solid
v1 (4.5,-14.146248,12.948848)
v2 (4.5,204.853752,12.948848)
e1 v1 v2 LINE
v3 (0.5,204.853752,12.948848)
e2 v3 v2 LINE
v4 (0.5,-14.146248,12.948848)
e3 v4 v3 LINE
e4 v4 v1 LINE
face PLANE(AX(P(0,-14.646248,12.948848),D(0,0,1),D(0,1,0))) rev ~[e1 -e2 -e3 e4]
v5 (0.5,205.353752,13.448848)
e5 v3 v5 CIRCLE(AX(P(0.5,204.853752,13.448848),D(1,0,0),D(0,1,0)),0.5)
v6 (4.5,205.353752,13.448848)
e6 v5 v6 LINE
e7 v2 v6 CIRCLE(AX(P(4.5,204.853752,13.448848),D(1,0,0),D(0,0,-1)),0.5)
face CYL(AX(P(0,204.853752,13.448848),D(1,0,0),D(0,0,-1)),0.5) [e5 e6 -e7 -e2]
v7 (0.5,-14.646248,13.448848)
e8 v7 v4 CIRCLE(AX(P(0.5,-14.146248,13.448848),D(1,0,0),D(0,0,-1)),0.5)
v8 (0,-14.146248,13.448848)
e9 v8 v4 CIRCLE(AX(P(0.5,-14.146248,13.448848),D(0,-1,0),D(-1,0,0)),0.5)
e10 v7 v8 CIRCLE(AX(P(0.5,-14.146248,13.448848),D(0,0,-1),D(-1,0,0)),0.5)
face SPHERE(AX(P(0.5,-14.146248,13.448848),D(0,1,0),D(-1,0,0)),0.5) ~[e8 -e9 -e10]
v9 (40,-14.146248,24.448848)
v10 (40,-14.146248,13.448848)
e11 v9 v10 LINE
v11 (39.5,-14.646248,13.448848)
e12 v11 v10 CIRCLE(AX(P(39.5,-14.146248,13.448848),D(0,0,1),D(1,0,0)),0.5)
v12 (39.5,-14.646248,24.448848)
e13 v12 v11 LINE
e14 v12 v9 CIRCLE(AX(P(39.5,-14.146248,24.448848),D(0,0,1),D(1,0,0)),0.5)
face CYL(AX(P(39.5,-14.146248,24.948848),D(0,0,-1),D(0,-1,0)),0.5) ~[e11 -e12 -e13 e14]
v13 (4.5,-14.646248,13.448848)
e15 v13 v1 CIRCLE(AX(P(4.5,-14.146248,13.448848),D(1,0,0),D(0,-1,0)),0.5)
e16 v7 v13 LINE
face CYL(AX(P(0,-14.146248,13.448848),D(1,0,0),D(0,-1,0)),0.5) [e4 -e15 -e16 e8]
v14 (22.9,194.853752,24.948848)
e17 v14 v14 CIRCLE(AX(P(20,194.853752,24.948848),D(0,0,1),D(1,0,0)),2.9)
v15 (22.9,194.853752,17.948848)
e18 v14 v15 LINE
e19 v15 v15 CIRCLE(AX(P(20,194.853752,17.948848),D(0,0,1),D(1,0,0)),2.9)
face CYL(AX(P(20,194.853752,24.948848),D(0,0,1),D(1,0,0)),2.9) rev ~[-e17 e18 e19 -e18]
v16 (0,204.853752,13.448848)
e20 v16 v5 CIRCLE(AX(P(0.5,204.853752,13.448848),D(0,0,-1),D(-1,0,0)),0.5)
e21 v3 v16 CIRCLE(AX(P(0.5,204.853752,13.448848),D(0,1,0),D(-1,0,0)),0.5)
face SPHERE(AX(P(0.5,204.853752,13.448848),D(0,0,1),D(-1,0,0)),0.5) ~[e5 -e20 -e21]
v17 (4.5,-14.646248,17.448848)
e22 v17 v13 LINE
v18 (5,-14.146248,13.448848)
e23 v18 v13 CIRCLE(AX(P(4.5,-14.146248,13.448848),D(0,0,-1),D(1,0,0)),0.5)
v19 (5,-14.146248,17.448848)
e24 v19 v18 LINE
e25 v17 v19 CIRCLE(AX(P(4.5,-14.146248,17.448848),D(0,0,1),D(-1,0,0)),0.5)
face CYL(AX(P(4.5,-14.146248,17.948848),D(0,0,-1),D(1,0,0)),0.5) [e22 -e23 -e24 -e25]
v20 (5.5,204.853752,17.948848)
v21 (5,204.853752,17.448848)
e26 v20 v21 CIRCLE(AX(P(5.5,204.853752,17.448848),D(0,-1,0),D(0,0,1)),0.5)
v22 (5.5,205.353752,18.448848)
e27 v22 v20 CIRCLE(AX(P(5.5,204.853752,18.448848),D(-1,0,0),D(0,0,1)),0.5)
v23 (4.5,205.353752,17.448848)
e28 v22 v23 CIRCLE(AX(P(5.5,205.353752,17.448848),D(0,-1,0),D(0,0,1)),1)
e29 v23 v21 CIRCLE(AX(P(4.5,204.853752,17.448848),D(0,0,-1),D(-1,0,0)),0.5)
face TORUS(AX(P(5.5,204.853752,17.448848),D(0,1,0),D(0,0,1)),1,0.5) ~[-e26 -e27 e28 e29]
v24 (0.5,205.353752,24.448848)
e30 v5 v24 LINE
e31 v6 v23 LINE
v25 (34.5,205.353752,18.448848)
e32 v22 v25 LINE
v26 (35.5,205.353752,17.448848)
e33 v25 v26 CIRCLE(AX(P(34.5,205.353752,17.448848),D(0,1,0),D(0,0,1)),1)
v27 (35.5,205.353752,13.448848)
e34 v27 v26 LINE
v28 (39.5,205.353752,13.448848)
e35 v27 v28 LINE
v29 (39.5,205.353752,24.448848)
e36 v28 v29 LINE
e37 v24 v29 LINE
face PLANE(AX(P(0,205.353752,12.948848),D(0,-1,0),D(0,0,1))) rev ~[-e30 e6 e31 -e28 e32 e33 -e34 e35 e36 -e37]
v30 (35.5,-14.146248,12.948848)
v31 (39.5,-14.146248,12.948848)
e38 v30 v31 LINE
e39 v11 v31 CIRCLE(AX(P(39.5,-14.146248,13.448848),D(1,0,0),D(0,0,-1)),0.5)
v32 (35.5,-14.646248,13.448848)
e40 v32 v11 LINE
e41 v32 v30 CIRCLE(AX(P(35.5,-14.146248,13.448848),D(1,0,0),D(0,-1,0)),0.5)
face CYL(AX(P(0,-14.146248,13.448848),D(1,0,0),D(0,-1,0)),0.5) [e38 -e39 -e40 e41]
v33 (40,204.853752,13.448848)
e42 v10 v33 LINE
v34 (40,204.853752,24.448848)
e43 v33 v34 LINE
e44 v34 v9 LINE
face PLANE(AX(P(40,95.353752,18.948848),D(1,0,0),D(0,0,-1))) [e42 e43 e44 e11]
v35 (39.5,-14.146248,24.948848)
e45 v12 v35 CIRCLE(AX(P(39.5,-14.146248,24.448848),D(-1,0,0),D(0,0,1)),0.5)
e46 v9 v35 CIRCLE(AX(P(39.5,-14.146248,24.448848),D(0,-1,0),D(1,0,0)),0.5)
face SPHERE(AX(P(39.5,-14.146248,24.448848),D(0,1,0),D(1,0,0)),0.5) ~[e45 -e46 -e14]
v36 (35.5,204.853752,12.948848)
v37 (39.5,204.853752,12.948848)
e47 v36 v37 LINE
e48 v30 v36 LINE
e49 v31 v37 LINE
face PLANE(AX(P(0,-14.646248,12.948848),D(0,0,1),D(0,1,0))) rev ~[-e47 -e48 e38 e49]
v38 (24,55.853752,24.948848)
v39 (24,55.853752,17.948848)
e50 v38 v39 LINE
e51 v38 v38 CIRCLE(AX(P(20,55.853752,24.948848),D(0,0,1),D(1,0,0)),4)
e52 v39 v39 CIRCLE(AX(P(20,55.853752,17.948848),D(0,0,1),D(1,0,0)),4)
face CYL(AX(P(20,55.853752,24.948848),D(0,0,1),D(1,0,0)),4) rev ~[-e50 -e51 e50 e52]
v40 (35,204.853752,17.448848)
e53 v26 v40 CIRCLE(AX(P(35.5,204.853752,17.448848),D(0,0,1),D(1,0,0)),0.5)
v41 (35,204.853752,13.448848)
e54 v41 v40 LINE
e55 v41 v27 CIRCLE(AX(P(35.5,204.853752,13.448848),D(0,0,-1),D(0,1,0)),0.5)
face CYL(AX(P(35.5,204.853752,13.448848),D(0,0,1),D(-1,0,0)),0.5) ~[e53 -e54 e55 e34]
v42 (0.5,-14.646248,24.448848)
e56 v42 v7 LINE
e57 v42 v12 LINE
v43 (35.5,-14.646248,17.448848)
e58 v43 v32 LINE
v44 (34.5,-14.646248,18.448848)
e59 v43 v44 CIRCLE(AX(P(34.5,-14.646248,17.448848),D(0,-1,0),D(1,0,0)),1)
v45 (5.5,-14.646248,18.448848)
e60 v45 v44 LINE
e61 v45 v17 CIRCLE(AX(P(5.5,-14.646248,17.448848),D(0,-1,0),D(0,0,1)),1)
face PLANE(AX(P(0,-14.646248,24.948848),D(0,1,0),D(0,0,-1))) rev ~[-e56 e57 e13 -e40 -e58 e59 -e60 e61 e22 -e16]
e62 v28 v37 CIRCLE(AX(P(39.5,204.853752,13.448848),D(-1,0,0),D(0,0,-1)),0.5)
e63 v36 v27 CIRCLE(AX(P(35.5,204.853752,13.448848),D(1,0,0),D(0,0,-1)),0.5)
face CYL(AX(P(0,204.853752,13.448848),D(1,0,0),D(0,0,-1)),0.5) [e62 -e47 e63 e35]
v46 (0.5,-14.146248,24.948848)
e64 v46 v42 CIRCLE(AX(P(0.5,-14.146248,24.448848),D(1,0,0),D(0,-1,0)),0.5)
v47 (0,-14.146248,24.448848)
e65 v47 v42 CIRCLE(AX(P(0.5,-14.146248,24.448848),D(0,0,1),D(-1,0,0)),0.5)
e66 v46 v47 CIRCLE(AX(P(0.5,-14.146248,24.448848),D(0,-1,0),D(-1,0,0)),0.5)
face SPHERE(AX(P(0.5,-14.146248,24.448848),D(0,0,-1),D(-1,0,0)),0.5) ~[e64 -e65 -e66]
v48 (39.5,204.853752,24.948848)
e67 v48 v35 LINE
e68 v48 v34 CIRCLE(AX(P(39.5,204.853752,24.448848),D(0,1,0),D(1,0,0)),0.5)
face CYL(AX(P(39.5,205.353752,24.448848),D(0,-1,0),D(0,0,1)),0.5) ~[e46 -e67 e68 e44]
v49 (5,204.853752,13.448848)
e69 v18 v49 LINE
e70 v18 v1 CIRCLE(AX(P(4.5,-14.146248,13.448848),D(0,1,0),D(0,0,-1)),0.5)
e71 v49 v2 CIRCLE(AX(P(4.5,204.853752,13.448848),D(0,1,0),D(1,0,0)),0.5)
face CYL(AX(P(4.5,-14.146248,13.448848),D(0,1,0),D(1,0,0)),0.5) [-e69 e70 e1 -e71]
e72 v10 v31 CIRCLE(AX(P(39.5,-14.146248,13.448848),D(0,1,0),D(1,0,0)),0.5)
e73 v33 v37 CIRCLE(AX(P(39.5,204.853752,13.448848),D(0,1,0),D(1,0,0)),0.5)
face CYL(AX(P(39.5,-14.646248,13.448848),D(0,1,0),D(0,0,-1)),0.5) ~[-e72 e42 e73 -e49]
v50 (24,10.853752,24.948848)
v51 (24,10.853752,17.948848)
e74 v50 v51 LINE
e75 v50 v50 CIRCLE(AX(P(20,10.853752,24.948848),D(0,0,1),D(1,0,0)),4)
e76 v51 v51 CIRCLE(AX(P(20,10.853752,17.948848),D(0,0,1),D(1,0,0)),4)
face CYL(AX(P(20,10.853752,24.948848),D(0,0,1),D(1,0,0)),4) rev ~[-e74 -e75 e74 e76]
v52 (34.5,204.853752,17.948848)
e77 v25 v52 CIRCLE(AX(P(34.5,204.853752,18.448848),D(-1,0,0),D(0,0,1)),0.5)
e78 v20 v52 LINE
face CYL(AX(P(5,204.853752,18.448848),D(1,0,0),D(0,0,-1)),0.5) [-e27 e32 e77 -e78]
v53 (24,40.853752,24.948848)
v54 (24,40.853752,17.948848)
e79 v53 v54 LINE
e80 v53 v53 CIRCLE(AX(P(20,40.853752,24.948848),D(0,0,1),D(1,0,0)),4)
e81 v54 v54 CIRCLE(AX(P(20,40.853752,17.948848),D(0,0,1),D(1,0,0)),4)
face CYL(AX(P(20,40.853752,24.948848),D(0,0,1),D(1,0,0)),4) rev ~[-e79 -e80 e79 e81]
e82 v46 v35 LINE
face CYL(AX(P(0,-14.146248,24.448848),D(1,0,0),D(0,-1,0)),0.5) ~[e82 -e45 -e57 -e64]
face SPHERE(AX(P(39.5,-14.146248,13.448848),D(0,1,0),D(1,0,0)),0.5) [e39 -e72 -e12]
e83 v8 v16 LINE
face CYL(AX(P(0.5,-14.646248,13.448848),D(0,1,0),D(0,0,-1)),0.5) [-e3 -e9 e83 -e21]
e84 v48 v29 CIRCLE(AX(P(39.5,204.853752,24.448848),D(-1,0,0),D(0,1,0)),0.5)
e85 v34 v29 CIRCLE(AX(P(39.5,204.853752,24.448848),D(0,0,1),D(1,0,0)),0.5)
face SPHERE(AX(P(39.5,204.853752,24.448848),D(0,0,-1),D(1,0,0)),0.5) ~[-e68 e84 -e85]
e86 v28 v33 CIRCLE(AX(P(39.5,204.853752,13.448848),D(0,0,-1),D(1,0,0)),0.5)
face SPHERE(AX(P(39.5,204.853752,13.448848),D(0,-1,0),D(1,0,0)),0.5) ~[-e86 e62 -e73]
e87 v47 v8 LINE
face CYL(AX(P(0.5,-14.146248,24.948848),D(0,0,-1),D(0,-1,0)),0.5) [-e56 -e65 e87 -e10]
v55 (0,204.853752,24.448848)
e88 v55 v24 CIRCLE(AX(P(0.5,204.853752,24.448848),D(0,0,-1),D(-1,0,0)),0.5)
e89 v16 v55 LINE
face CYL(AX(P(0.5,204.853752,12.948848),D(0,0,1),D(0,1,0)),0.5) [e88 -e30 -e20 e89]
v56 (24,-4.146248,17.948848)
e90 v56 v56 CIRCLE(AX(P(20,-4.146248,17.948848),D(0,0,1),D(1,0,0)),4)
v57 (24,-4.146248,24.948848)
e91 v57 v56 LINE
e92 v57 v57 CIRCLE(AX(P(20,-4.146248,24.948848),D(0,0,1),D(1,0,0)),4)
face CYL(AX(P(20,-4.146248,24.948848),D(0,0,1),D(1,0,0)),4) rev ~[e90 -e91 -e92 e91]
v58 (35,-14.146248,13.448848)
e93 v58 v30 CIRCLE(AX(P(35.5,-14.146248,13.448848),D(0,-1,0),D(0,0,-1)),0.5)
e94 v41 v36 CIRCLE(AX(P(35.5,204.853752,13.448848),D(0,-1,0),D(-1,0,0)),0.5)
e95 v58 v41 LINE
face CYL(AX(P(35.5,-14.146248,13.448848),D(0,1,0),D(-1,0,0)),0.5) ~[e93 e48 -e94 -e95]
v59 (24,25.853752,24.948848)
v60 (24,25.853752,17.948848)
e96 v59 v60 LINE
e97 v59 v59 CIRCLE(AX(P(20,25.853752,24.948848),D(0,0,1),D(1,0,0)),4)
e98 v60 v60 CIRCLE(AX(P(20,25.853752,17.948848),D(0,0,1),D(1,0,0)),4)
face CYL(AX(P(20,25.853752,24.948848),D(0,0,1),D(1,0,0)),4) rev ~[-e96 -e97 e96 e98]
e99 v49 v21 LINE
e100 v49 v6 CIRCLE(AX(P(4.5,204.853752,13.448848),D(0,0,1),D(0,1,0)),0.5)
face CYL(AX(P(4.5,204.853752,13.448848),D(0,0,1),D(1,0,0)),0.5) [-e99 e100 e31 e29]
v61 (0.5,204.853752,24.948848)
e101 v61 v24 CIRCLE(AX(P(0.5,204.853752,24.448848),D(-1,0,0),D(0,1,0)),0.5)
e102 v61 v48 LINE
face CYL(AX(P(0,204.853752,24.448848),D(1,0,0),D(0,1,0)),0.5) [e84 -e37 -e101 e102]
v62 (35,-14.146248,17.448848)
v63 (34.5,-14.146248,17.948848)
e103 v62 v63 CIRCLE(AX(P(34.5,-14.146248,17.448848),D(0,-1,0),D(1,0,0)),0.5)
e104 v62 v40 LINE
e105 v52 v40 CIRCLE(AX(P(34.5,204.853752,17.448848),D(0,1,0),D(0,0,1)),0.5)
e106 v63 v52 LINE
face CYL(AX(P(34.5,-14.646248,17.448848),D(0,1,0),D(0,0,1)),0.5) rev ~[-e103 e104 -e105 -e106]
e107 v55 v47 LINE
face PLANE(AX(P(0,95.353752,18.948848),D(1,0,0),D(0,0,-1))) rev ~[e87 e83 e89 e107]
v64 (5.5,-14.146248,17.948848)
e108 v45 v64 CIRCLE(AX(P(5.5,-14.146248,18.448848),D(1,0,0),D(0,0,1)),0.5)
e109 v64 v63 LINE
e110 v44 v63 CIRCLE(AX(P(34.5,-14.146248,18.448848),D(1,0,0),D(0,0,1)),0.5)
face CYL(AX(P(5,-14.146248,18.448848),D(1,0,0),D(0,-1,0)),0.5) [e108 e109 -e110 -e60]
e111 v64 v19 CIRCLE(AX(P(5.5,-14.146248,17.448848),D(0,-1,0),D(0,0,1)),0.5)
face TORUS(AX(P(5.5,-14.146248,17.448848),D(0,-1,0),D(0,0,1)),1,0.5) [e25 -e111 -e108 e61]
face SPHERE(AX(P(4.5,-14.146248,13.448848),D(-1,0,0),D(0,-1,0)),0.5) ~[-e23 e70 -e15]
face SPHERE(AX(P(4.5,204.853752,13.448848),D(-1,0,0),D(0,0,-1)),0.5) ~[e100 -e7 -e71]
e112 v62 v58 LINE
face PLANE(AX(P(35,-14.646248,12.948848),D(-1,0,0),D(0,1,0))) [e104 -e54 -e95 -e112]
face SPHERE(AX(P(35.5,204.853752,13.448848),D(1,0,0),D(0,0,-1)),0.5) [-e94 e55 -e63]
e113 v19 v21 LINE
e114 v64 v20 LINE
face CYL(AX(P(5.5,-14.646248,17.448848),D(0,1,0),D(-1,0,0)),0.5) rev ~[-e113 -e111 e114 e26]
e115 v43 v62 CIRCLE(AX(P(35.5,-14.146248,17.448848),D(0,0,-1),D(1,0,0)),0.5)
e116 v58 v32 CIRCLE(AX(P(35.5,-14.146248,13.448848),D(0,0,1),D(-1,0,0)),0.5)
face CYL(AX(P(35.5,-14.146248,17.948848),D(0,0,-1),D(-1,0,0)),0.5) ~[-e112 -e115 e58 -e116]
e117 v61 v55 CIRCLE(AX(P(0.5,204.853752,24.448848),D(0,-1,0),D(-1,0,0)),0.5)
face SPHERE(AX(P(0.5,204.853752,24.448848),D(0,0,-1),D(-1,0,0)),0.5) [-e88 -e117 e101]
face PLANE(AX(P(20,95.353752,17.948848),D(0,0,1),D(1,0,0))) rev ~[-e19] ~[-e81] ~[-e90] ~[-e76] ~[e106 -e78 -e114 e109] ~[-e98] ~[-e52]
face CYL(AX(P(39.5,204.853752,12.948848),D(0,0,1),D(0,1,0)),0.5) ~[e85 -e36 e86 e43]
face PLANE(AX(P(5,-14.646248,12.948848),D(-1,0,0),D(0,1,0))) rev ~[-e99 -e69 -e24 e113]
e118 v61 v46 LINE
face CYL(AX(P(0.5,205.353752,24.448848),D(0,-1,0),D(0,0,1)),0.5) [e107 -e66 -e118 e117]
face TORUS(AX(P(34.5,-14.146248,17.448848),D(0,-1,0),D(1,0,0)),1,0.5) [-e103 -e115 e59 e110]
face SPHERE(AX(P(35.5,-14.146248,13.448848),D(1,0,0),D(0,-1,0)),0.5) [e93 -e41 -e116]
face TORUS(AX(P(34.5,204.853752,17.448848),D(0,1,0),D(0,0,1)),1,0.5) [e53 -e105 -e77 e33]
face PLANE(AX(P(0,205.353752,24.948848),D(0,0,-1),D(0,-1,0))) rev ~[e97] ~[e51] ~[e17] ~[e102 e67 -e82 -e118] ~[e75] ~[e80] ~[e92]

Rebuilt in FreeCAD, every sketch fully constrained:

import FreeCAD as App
import Part
import Sketcher
Q = App.Units.Quantity


def edges_at(feature, points):
    """Names of the edges that pass closest to the given points."""
    edges = feature.Shape.Edges
    near = lambda p: min(range(len(edges)), key=lambda i: edges[i].distToShape(Part.Vertex(*p))[0])
    return sorted({f"Edge{near(p) + 1}" for p in points})


def add_polygon(sketch, points):
    """Adds a closed chain of lines whose ends are joined by coincident constraints."""
    first, n = sketch.GeometryCount, len(points)
    for a, b in zip(points, points[1:] + points[:1]):
        sketch.addGeometry(Part.LineSegment(App.Vector(*a, 0), App.Vector(*b, 0)), False)
    for i in range(n):
        sketch.addConstraint(Sketcher.Constraint("Coincident", first + i, 2, first + (i + 1) % n, 1))

doc = App.newDocument("Part")
params = doc.addObject("Spreadsheet::Sheet", "Params")
for row, (alias, value) in enumerate([
    ("sketch1_width", "220 mm"),
    ("sketch1_height", "12 mm"),
    ("pad1_length", "40 mm"),
    ("fillet_radius", "0.5 mm"),
    ("sketch2_width", "30 mm"),
    ("sketch2_height", "220 mm"),
    ("pocket1_length", "5 mm"),
    ("sketch3_diameter", "8 mm"),
    ("sketch4_diameter", "5.8 mm"),
    ("sketch5_diameter", "8 mm"),
    ("sketch6_diameter", "8 mm"),
    ("sketch7_diameter", "8 mm"),
    ("sketch8_diameter", "8 mm"),
    ("fillet2_radius", "0.5 mm"),
], start=1):
    params.set(f"A{row}", alias)
    params.set(f"B{row}", "=" + value)
    params.setAlias(f"B{row}", alias)

body = doc.addObject("PartDesign::Body", "Body")

sketch1 = body.newObject("Sketcher::SketchObject", "Sketch")
sketch1.AttachmentSupport = (doc.getObject("YZ_Plane"), [""])
sketch1.MapMode = "FlatFace"
add_polygon(sketch1, [(-14.646248, 24.948848), (-14.646248, 12.948848), (205.353752, 12.948848), (205.353752, 24.948848)])
sketch1.addConstraint([
    Sketcher.Constraint("Vertical", 0),
    Sketcher.Constraint("Horizontal", 1),
    Sketcher.Constraint("Vertical", 2),
    Sketcher.Constraint("Horizontal", 3),
    Sketcher.Constraint("DistanceX", 1, 1, 1, 2, Q("220 mm")),
    Sketcher.Constraint("DistanceY", 0, 2, 0, 1, Q("12 mm")),
    Sketcher.Constraint("DistanceX", 0, 2, -1, 1, Q("14.646248 mm")),
    Sketcher.Constraint("DistanceY", -1, 1, 0, 2, Q("12.948848 mm")),
])
sketch1.setExpression("Constraints[8]", "Params.sketch1_width")
sketch1.setExpression("Constraints[9]", "Params.sketch1_height")
pad1 = body.newObject("PartDesign::Pad", "Pad")
pad1.Profile = sketch1
pad1.setExpression("Length", "Params.pad1_length")
doc.recompute()

fillet = body.newObject("PartDesign::Fillet", "Fillet")
fillet.Base = (pad1, ["Edge1"])
fillet.UseAllEdges = True
fillet.setExpression("Radius", "Params.fillet_radius")

sketch2 = body.newObject("Sketcher::SketchObject", "Sketch001")
sketch2.AttachmentSupport = (doc.getObject("XY_Plane"), [""])
sketch2.MapMode = "FlatFace"
sketch2.AttachmentOffset = App.Placement(App.Vector(0, 0, 12.948848), App.Rotation())
add_polygon(sketch2, [(5, 205.353752), (5, -14.646248), (35, -14.646248), (35, 205.353752)])
sketch2.addConstraint([
    Sketcher.Constraint("Vertical", 0),
    Sketcher.Constraint("Horizontal", 1),
    Sketcher.Constraint("Vertical", 2),
    Sketcher.Constraint("Horizontal", 3),
    Sketcher.Constraint("DistanceX", 1, 1, 1, 2, Q("30 mm")),
    Sketcher.Constraint("DistanceY", 0, 2, 0, 1, Q("220 mm")),
    Sketcher.Constraint("DistanceX", -1, 1, 0, 2, Q("5 mm")),
    Sketcher.Constraint("DistanceY", 0, 2, -1, 1, Q("14.646248 mm")),
])
sketch2.setExpression("Constraints[8]", "Params.sketch2_width")
sketch2.setExpression("Constraints[9]", "Params.sketch2_height")
pocket1 = body.newObject("PartDesign::Pocket", "Pocket")
pocket1.Profile = sketch2
pocket1.setExpression("Length", "Params.pocket1_length")
pocket1.Reversed = True

sketch3 = body.newObject("Sketcher::SketchObject", "Sketch002")
sketch3.AttachmentSupport = (doc.getObject("XY_Plane"), [""])
sketch3.MapMode = "FlatFace"
sketch3.AttachmentOffset = App.Placement(App.Vector(0, 0, 24.948848), App.Rotation())
sketch3.addGeometry(Part.Circle(App.Vector(20, -4.146248, 0), App.Vector(0, 0, 1), 4), False)
sketch3.addConstraint([
    Sketcher.Constraint("Diameter", 0, Q("8 mm")),
    Sketcher.Constraint("DistanceX", -1, 1, 0, 3, Q("20 mm")),
    Sketcher.Constraint("DistanceY", 0, 3, -1, 1, Q("4.146248 mm")),
])
sketch3.setExpression("Constraints[0]", "Params.sketch3_diameter")
pocket2 = body.newObject("PartDesign::Pocket", "Pocket001")
pocket2.Profile = sketch3
pocket2.Type = "UpToFirst"

sketch4 = body.newObject("Sketcher::SketchObject", "Sketch003")
sketch4.AttachmentSupport = (doc.getObject("XY_Plane"), [""])
sketch4.MapMode = "FlatFace"
sketch4.AttachmentOffset = App.Placement(App.Vector(0, 0, 24.948848), App.Rotation())
sketch4.addGeometry(Part.Circle(App.Vector(20, 194.853752, 0), App.Vector(0, 0, 1), 2.9), False)
sketch4.addConstraint([
    Sketcher.Constraint("Diameter", 0, Q("5.8 mm")),
    Sketcher.Constraint("DistanceX", -1, 1, 0, 3, Q("20 mm")),
    Sketcher.Constraint("DistanceY", -1, 1, 0, 3, Q("194.853752 mm")),
])
sketch4.setExpression("Constraints[0]", "Params.sketch4_diameter")
pocket3 = body.newObject("PartDesign::Pocket", "Pocket002")
pocket3.Profile = sketch4
pocket3.Type = "UpToFirst"

sketch5 = body.newObject("Sketcher::SketchObject", "Sketch004")
sketch5.AttachmentSupport = (doc.getObject("XY_Plane"), [""])
sketch5.MapMode = "FlatFace"
sketch5.AttachmentOffset = App.Placement(App.Vector(0, 0, 24.948848), App.Rotation())
sketch5.addGeometry(Part.Circle(App.Vector(20, 10.853752, 0), App.Vector(0, 0, 1), 4), False)
sketch5.addConstraint([
    Sketcher.Constraint("Diameter", 0, Q("8 mm")),
    Sketcher.Constraint("DistanceX", -1, 1, 0, 3, Q("20 mm")),
    Sketcher.Constraint("DistanceY", -1, 1, 0, 3, Q("10.853752 mm")),
])
sketch5.setExpression("Constraints[0]", "Params.sketch5_diameter")
pocket4 = body.newObject("PartDesign::Pocket", "Pocket003")
pocket4.Profile = sketch5
pocket4.Type = "UpToFirst"

sketch6 = body.newObject("Sketcher::SketchObject", "Sketch005")
sketch6.AttachmentSupport = (doc.getObject("XY_Plane"), [""])
sketch6.MapMode = "FlatFace"
sketch6.AttachmentOffset = App.Placement(App.Vector(0, 0, 24.948848), App.Rotation())
sketch6.addGeometry(Part.Circle(App.Vector(20, 25.853752, 0), App.Vector(0, 0, 1), 4), False)
sketch6.addConstraint([
    Sketcher.Constraint("Diameter", 0, Q("8 mm")),
    Sketcher.Constraint("DistanceX", -1, 1, 0, 3, Q("20 mm")),
    Sketcher.Constraint("DistanceY", -1, 1, 0, 3, Q("25.853752 mm")),
])
sketch6.setExpression("Constraints[0]", "Params.sketch6_diameter")
pocket5 = body.newObject("PartDesign::Pocket", "Pocket004")
pocket5.Profile = sketch6
pocket5.Type = "UpToFirst"

sketch7 = body.newObject("Sketcher::SketchObject", "Sketch006")
sketch7.AttachmentSupport = (doc.getObject("XY_Plane"), [""])
sketch7.MapMode = "FlatFace"
sketch7.AttachmentOffset = App.Placement(App.Vector(0, 0, 24.948848), App.Rotation())
sketch7.addGeometry(Part.Circle(App.Vector(20, 40.853752, 0), App.Vector(0, 0, 1), 4), False)
sketch7.addConstraint([
    Sketcher.Constraint("Diameter", 0, Q("8 mm")),
    Sketcher.Constraint("DistanceX", -1, 1, 0, 3, Q("20 mm")),
    Sketcher.Constraint("DistanceY", -1, 1, 0, 3, Q("40.853752 mm")),
])
sketch7.setExpression("Constraints[0]", "Params.sketch7_diameter")
pocket6 = body.newObject("PartDesign::Pocket", "Pocket005")
pocket6.Profile = sketch7
pocket6.Type = "UpToFirst"

sketch8 = body.newObject("Sketcher::SketchObject", "Sketch007")
sketch8.AttachmentSupport = (doc.getObject("XY_Plane"), [""])
sketch8.MapMode = "FlatFace"
sketch8.AttachmentOffset = App.Placement(App.Vector(0, 0, 24.948848), App.Rotation())
sketch8.addGeometry(Part.Circle(App.Vector(20, 55.853752, 0), App.Vector(0, 0, 1), 4), False)
sketch8.addConstraint([
    Sketcher.Constraint("Diameter", 0, Q("8 mm")),
    Sketcher.Constraint("DistanceX", -1, 1, 0, 3, Q("20 mm")),
    Sketcher.Constraint("DistanceY", -1, 1, 0, 3, Q("55.853752 mm")),
])
sketch8.setExpression("Constraints[0]", "Params.sketch8_diameter")
pocket7 = body.newObject("PartDesign::Pocket", "Pocket006")
pocket7.Profile = sketch8
pocket7.Type = "UpToFirst"
doc.recompute()

fillet2 = body.newObject("PartDesign::Fillet", "Fillet001")
fillet2.Base = (pocket7, edges_at(pocket7, [
    (35, 205.207, 13.095),
    (5, 205.207, 13.095),
    (35, 205.354, 15.699),
    (5, 95.354, 12.949),
    (5, -14.5, 13.095),
    (5, 205.354, 15.699),
    (5, -14.646, 15.699),
    (35, -14.646, 15.699),
    (35, -14.5, 13.095),
    (35, 95.354, 12.949),
    (5, 95.354, 17.949),
    (20, -14.646, 17.949),
    (35, 95.354, 17.949),
    (20, 205.354, 17.949),
]))
fillet2.setExpression("Radius", "Params.fillet2_radius")

doc.recompute()
